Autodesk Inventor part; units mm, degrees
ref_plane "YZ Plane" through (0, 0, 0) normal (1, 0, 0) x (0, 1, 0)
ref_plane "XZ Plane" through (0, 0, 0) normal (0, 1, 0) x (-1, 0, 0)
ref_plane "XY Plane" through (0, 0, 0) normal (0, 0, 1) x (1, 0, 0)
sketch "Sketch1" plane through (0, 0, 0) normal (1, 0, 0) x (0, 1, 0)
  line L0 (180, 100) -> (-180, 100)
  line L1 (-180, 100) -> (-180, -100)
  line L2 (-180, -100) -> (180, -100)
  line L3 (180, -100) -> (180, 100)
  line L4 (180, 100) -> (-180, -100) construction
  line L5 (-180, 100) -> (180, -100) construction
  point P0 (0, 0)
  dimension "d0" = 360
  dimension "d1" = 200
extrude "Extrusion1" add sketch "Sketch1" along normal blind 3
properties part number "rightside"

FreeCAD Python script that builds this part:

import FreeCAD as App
import Part
import Sketcher
from FreeCAD import Vector


def add_polygon(sketch, points):
    """Adds a closed chain of lines whose ends are joined by coincident constraints."""
    first, n = sketch.GeometryCount, len(points)
    for a, b in zip(points, points[1:] + points[:1]):
        sketch.addGeometry(Part.LineSegment(App.Vector(*a, 0), App.Vector(*b, 0)), False)
    for i in range(n):
        sketch.addConstraint(Sketcher.Constraint("Coincident", first + i, 2, first + (i + 1) % n, 1))

doc = App.newDocument("Part")
body = doc.addObject("PartDesign::Body", "Body")

# Sketch on YZ plane
sketch1 = doc.addObject("Sketcher::SketchObject", "Sketch")
body.addObject(sketch1)
sketch1.AttachmentSupport = (doc.YZ_Plane, [""])
sketch1.MapMode = "FlatFace"
add_polygon(sketch1, [(180, -100), (180, 100), (-180, 100), (-180, -100)])  # lines 0-3
sketch1.addConstraint([
    Sketcher.Constraint("Vertical", 0),
    Sketcher.Constraint("Horizontal", 1),
    Sketcher.Constraint("Vertical", 2),
    Sketcher.Constraint("Horizontal", 3),
    Sketcher.Constraint("Symmetric", 0, 2, 2, 2, -1, 1),
    Sketcher.Constraint("DistanceX", 1, 2, 1, 1, 360.0),
    Sketcher.Constraint("DistanceY", 0, 1, 0, 2, 200.0),
])
pad1 = doc.addObject("PartDesign::Pad", "Pad")
body.addObject(pad1)
pad1.Profile = sketch1
pad1.Length = 3

doc.recompute()
